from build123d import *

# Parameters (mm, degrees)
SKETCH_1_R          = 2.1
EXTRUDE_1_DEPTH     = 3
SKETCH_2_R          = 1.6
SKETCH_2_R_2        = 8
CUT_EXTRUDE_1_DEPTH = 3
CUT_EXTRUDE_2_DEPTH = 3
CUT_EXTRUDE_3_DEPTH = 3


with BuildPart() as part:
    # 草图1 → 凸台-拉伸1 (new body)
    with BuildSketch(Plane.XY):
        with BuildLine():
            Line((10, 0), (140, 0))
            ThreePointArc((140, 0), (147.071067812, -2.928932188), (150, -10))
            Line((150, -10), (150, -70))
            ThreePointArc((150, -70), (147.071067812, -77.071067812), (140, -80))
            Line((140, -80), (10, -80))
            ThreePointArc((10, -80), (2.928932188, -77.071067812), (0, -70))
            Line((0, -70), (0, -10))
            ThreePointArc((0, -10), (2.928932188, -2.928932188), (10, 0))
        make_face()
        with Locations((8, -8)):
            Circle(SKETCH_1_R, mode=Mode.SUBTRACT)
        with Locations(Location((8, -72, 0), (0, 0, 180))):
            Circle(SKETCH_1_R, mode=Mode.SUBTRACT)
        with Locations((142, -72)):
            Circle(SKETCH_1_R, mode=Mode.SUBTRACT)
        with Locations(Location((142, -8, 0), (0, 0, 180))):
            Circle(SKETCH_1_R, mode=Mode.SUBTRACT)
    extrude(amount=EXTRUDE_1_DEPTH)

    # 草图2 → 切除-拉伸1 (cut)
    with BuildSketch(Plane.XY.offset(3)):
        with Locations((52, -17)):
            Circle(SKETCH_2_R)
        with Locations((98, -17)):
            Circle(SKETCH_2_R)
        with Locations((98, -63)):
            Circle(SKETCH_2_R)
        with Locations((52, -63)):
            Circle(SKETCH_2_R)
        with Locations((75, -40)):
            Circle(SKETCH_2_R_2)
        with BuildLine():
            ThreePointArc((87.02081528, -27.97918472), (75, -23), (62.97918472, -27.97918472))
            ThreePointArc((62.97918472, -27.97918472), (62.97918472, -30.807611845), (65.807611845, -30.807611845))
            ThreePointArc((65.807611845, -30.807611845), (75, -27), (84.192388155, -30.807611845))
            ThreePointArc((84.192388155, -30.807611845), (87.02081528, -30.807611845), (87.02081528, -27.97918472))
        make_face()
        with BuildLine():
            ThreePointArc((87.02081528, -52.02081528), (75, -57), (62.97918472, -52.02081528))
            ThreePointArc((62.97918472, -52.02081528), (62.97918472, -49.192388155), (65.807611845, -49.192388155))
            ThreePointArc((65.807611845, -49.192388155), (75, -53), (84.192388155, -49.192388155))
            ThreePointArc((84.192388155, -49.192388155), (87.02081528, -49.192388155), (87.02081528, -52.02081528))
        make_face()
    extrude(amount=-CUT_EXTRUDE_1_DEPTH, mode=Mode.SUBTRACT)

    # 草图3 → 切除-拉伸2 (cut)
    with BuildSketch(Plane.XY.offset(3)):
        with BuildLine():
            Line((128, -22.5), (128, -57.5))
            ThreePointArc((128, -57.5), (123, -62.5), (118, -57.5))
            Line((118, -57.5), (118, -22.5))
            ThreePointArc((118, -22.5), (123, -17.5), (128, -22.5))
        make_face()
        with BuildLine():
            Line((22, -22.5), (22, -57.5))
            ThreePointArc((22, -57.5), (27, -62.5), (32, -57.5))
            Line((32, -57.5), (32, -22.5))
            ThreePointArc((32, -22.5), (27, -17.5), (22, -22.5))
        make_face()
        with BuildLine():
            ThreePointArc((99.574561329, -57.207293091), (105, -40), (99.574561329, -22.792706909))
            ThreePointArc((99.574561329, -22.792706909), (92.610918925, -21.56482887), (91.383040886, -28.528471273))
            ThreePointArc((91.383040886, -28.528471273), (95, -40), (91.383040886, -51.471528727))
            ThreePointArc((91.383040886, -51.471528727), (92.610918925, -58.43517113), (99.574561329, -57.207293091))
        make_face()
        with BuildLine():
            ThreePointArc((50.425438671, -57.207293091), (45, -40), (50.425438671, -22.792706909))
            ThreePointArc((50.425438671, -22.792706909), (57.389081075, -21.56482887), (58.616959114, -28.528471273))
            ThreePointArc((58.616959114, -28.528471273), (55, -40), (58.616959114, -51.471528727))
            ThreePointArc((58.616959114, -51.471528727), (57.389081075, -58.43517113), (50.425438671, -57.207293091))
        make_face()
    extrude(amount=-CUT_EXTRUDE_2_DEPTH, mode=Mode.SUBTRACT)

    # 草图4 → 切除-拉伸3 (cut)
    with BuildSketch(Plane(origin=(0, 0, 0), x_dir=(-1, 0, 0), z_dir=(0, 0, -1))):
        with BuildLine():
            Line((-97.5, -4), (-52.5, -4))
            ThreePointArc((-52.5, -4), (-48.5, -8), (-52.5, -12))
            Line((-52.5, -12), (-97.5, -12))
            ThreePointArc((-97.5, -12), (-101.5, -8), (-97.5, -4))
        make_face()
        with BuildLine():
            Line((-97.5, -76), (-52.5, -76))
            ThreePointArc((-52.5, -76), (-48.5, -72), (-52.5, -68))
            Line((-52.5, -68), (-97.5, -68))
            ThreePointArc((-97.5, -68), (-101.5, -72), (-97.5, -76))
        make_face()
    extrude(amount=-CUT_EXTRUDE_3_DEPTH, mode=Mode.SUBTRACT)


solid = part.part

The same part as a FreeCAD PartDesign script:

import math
import FreeCAD as App
import Part
import Sketcher

V = App.Vector
Q = App.Units.Quantity

doc = App.newDocument("Part")
body = doc.addObject("PartDesign::Body", "Body")

# Sketch on XY plane
sketch1 = body.newObject("Sketcher::SketchObject", "Sketch")
sketch1.AttachmentSupport = (doc.getObject("XY_Plane"), [""])
sketch1.MapMode = "FlatFace"
sketch1.addGeometry([
    Part.LineSegment(V(140, 0, 0), V(10, 0, 0)),  # 0
    Part.ArcOfCircle(Part.Circle(V(10, -10, 0), V(0, 0, 1), 10), math.radians(90), math.radians(180)),  # 1
    Part.LineSegment(V(0, -10, 0), V(0, -70, 0)),  # 2
    Part.ArcOfCircle(Part.Circle(V(10, -70, 0), V(0, 0, 1), 10), math.radians(180), math.radians(270)),  # 3
    Part.LineSegment(V(10, -80, 0), V(140, -80, 0)),  # 4
    Part.ArcOfCircle(Part.Circle(V(140, -70, 0), V(0, 0, 1), 10), math.radians(-90), math.radians(0)),  # 5
    Part.LineSegment(V(150, -70, 0), V(150, -10, 0)),  # 6
    Part.ArcOfCircle(Part.Circle(V(140, -10, 0), V(0, 0, 1), 10), math.radians(0), math.radians(90)),  # 7
    Part.Circle(V(142, -72, 0), V(0, 0, 1), 2.1),  # 8
    Part.Circle(V(8, -72, 0), V(0, 0, 1), 2.1),  # 9
    Part.Circle(V(142, -8, 0), V(0, 0, 1), 2.1),  # 10
    Part.Circle(V(8, -8, 0), V(0, 0, 1), 2.1),  # 11
], False)
sketch1.addConstraint([
    Sketcher.Constraint("Tangent", 0, 2, 1, 1),
    Sketcher.Constraint("Tangent", 1, 2, 2, 1),
    Sketcher.Constraint("Tangent", 2, 2, 3, 1),
    Sketcher.Constraint("Tangent", 3, 2, 4, 1),
    Sketcher.Constraint("Tangent", 4, 2, 5, 1),
    Sketcher.Constraint("Tangent", 5, 2, 6, 1),
    Sketcher.Constraint("Tangent", 6, 2, 7, 1),
    Sketcher.Constraint("Tangent", 7, 2, 0, 1),
    Sketcher.Constraint("Horizontal", 0),
    Sketcher.Constraint("Vertical", 2),
    Sketcher.Constraint("Horizontal", 4),
    Sketcher.Constraint("Vertical", 6),
    Sketcher.Constraint("Equal", 1, 3),
    Sketcher.Constraint("Equal", 3, 5),
    Sketcher.Constraint("Equal", 5, 7),
    Sketcher.Constraint("Equal", 8, 9),
    Sketcher.Constraint("Equal", 9, 10),
    Sketcher.Constraint("Equal", 10, 11),
    Sketcher.Constraint("PointOnObject", 0, 2, -1),
    Sketcher.Constraint("PointOnObject", 1, 2, -2),
    Sketcher.Constraint("Horizontal", 8, 3, 9, 3),
    Sketcher.Constraint("Horizontal", 10, 3, 11, 3),
    Sketcher.Constraint("Vertical", 8, 3, 10, 3),
    Sketcher.Constraint("Vertical", 9, 3, 11, 3),
    Sketcher.Constraint("Radius", 1, Q("10 mm")),
    Sketcher.Constraint("Diameter", 8, Q("4.2 mm")),
    Sketcher.Constraint("DistanceX", 0, 2, 0, 1, Q("130 mm")),
    Sketcher.Constraint("DistanceY", 2, 2, 2, 1, Q("60 mm")),
    Sketcher.Constraint("DistanceX", -1, 1, 8, 3, Q("142 mm")),
    Sketcher.Constraint("DistanceY", 8, 3, -1, 1, Q("72 mm")),
    Sketcher.Constraint("DistanceX", -1, 1, 9, 3, Q("8 mm")),
    Sketcher.Constraint("DistanceY", 10, 3, -1, 1, Q("8 mm")),
])
pad1 = body.newObject("PartDesign::Pad", "Pad")
pad1.Profile = sketch1
pad1.Length = 3

# Sketch on XY plane
sketch2 = body.newObject("Sketcher::SketchObject", "Sketch001")
sketch2.AttachmentSupport = (doc.getObject("XY_Plane"), [""])
sketch2.MapMode = "FlatFace"
sketch2.AttachmentOffset = App.Placement(V(0, 0, 3), App.Rotation())
sketch2.addGeometry([
    Part.Circle(V(52, -17, 0), V(0, 0, 1), 1.6),  # 0
    Part.Circle(V(98, -17, 0), V(0, 0, 1), 1.6),  # 1
    Part.Circle(V(98, -63, 0), V(0, 0, 1), 1.6),  # 2
    Part.Circle(V(52, -63, 0), V(0, 0, 1), 1.6),  # 3
    Part.Circle(V(75, -40, 0), V(0, 0, 1), 8),  # 4
    Part.ArcOfCircle(Part.Circle(V(75, -40, 0), V(0, 0, 1), 17), math.radians(45), math.radians(135)),  # 5
    Part.ArcOfCircle(Part.Circle(V(64.393398, -29.393398, 0), V(0, 0, 1), 2), math.radians(135), math.radians(315)),  # 6
    Part.ArcOfCircle(Part.Circle(V(75, -40, 0), V(0, 0, 1), 13), math.radians(45), math.radians(135)),  # 7
    Part.ArcOfCircle(Part.Circle(V(85.606602, -29.393398, 0), V(0, 0, 1), 2), math.radians(-135), math.radians(45)),  # 8
    Part.ArcOfCircle(Part.Circle(V(75, -40, 0), V(0, 0, 1), 17), math.radians(-135), math.radians(-45)),  # 9
    Part.ArcOfCircle(Part.Circle(V(85.606602, -50.606602, 0), V(0, 0, 1), 2), math.radians(-45), math.radians(135)),  # 10
    Part.ArcOfCircle(Part.Circle(V(75, -40, 0), V(0, 0, 1), 13), math.radians(-135), math.radians(-45)),  # 11
    Part.ArcOfCircle(Part.Circle(V(64.393398, -50.606602, 0), V(0, 0, 1), 2), math.radians(45), math.radians(225)),  # 12
], False)
sketch2.addConstraint([
    Sketcher.Constraint("Tangent", 5, 2, 6, 1),
    Sketcher.Constraint("Tangent", 6, 2, 7, 2),
    Sketcher.Constraint("Tangent", 7, 1, 8, 1),
    Sketcher.Constraint("Tangent", 8, 2, 5, 1),
    Sketcher.Constraint("Tangent", 9, 2, 10, 1),
    Sketcher.Constraint("Tangent", 10, 2, 11, 2),
    Sketcher.Constraint("Tangent", 11, 1, 12, 1),
    Sketcher.Constraint("Tangent", 12, 2, 9, 1),
    Sketcher.Constraint("Coincident", 5, 3, 4, 3),
    Sketcher.Constraint("Coincident", 7, 3, 4, 3),
    Sketcher.Constraint("Coincident", 9, 3, 4, 3),
    Sketcher.Constraint("Coincident", 11, 3, 4, 3),
    Sketcher.Constraint("Equal", 0, 1),
    Sketcher.Constraint("Equal", 1, 2),
    Sketcher.Constraint("Equal", 2, 3),
    Sketcher.Constraint("Equal", 5, 9),
    Sketcher.Constraint("Equal", 8, 10),
    Sketcher.Constraint("Horizontal", 0, 3, 1, 3),
    Sketcher.Constraint("Horizontal", 2, 3, 3, 3),
    Sketcher.Constraint("Horizontal", 6, 3, 8, 3),
    Sketcher.Constraint("Horizontal", 10, 3, 12, 3),
    Sketcher.Constraint("Vertical", 1, 3, 2, 3),
    Sketcher.Constraint("Vertical", 0, 3, 3, 3),
    Sketcher.Constraint("Vertical", 8, 3, 10, 3),
    Sketcher.Constraint("Diameter", 4, Q("16 mm")),
    Sketcher.Constraint("Radius", 5, Q("17 mm")),
    Sketcher.Constraint("Radius", 6, Q("2 mm")),
    Sketcher.Constraint("Diameter", 0, Q("3.2 mm")),
    Sketcher.Constraint("DistanceX", -1, 1, 0, 3, Q("52 mm")),
    Sketcher.Constraint("DistanceY", 0, 3, -1, 1, Q("17 mm")),
    Sketcher.Constraint("DistanceX", -1, 1, 1, 3, Q("98 mm")),
    Sketcher.Constraint("DistanceY", 2, 3, -1, 1, Q("63 mm")),
    Sketcher.Constraint("DistanceX", -1, 1, 4, 3, Q("75 mm")),
    Sketcher.Constraint("DistanceY", 4, 3, -1, 1, Q("40 mm")),
    Sketcher.Constraint("DistanceX", -1, 1, 6, 3, Q("64.393398 mm")),
])
pocket1 = body.newObject("PartDesign::Pocket", "Pocket")
pocket1.Profile = sketch2
pocket1.Length = 3

# Sketch on XY plane
sketch3 = body.newObject("Sketcher::SketchObject", "Sketch002")
sketch3.AttachmentSupport = (doc.getObject("XY_Plane"), [""])
sketch3.MapMode = "FlatFace"
sketch3.AttachmentOffset = App.Placement(V(0, 0, 3), App.Rotation())
sketch3.addGeometry([
    Part.LineSegment(V(128, -57.5, 0), V(128, -22.5, 0)),  # 0
    Part.ArcOfCircle(Part.Circle(V(123, -22.5, 0), V(0, 0, 1), 5), math.radians(0), math.radians(180)),  # 1
    Part.LineSegment(V(118, -22.5, 0), V(118, -57.5, 0)),  # 2
    Part.ArcOfCircle(Part.Circle(V(123, -57.5, 0), V(0, 0, 1), 5), math.radians(180), math.radians(360)),  # 3
    Part.LineSegment(V(22, -22.5, 0), V(22, -57.5, 0)),  # 4
    Part.ArcOfCircle(Part.Circle(V(27, -57.5, 0), V(0, 0, 1), 5), math.radians(180), math.radians(360)),  # 5
    Part.LineSegment(V(32, -57.5, 0), V(32, -22.5, 0)),  # 6
    Part.ArcOfCircle(Part.Circle(V(27, -22.5, 0), V(0, 0, 1), 5), math.radians(0), math.radians(180)),  # 7
    Part.ArcOfCircle(Part.Circle(V(75, -40, 0), V(0, 0, 1), 30), math.radians(-35), math.radians(35)),  # 8
    Part.ArcOfCircle(Part.Circle(V(95.478801, -25.660589, 0), V(0, 0, 1), 5), math.radians(35), math.radians(215)),  # 9
    Part.ArcOfCircle(Part.Circle(V(75, -40, 0), V(0, 0, 1), 20), math.radians(-35), math.radians(35)),  # 10
    Part.ArcOfCircle(Part.Circle(V(95.478801, -54.339411, 0), V(0, 0, 1), 5), math.radians(145), math.radians(325)),  # 11
    Part.ArcOfCircle(Part.Circle(V(75, -40, 0), V(0, 0, 1), 30), math.radians(145), math.radians(215)),  # 12
    Part.ArcOfCircle(Part.Circle(V(54.521199, -54.339411, 0), V(0, 0, 1), 5), math.radians(-145), math.radians(35)),  # 13
    Part.ArcOfCircle(Part.Circle(V(75, -40, 0), V(0, 0, 1), 20), math.radians(145), math.radians(215)),  # 14
    Part.ArcOfCircle(Part.Circle(V(54.521199, -25.660589, 0), V(0, 0, 1), 5), math.radians(-35), math.radians(145)),  # 15
], False)
sketch3.addConstraint([
    Sketcher.Constraint("Tangent", 0, 2, 1, 1),
    Sketcher.Constraint("Tangent", 1, 2, 2, 1),
    Sketcher.Constraint("Tangent", 2, 2, 3, 1),
    Sketcher.Constraint("Tangent", 3, 2, 0, 1),
    Sketcher.Constraint("Tangent", 4, 2, 5, 1),
    Sketcher.Constraint("Tangent", 5, 2, 6, 1),
    Sketcher.Constraint("Tangent", 6, 2, 7, 1),
    Sketcher.Constraint("Tangent", 7, 2, 4, 1),
    Sketcher.Constraint("Tangent", 8, 2, 9, 1),
    Sketcher.Constraint("Tangent", 9, 2, 10, 2),
    Sketcher.Constraint("Tangent", 10, 1, 11, 1),
    Sketcher.Constraint("Tangent", 11, 2, 8, 1),
    Sketcher.Constraint("Tangent", 12, 2, 13, 1),
    Sketcher.Constraint("Tangent", 13, 2, 14, 2),
    Sketcher.Constraint("Tangent", 14, 1, 15, 1),
    Sketcher.Constraint("Tangent", 15, 2, 12, 1),
    Sketcher.Constraint("Vertical", 0),
    Sketcher.Constraint("Vertical", 2),
    Sketcher.Constraint("Vertical", 4),
    Sketcher.Constraint("Vertical", 6),
    Sketcher.Constraint("Coincident", 10, 3, 8, 3),
    Sketcher.Constraint("Coincident", 12, 3, 8, 3),
    Sketcher.Constraint("Coincident", 14, 3, 8, 3),
    Sketcher.Constraint("Equal", 3, 5),
    Sketcher.Constraint("Equal", 7, 9),
    Sketcher.Constraint("Equal", 8, 12),
    Sketcher.Constraint("Equal", 11, 13),
    Sketcher.Constraint("Horizontal", 3, 3, 5, 3),
    Sketcher.Constraint("Horizontal", 1, 3, 7, 3),
    Sketcher.Constraint("Horizontal", 11, 3, 13, 3),
    Sketcher.Constraint("Horizontal", 9, 3, 15, 3),
    Sketcher.Constraint("Vertical", 9, 3, 11, 3),
    Sketcher.Constraint("Radius", 1, Q("5 mm")),
    Sketcher.Constraint("Radius", 8, Q("30 mm")),
    Sketcher.Constraint("DistanceY", 0, 1, 0, 2, Q("35 mm")),
    Sketcher.Constraint("DistanceX", -1, 1, 1, 3, Q("123 mm")),
    Sketcher.Constraint("DistanceX", -1, 1, 5, 3, Q("27 mm")),
    Sketcher.Constraint("DistanceX", -1, 1, 8, 3, Q("75 mm")),
    Sketcher.Constraint("DistanceY", 8, 3, -1, 1, Q("40 mm")),
    Sketcher.Constraint("DistanceY", 1, 3, -1, 1, Q("22.5 mm")),
    Sketcher.Constraint("DistanceX", -1, 1, 9, 3, Q("95.478801 mm")),
])
pocket2 = body.newObject("PartDesign::Pocket", "Pocket001")
pocket2.Profile = sketch3
pocket2.Length = 3

# Sketch on XY plane
sketch4 = body.newObject("Sketcher::SketchObject", "Sketch003")
sketch4.AttachmentSupport = (doc.getObject("XY_Plane"), [""])
sketch4.MapMode = "FlatFace"
sketch4.addGeometry([
    Part.LineSegment(V(52.5, -4, 0), V(97.5, -4, 0)),  # 0
    Part.ArcOfCircle(Part.Circle(V(97.5, -8, 0), V(0, 0, 1), 4), math.radians(-90), math.radians(90)),  # 1
    Part.LineSegment(V(97.5, -12, 0), V(52.5, -12, 0)),  # 2
    Part.ArcOfCircle(Part.Circle(V(52.5, -8, 0), V(0, 0, 1), 4), math.radians(90), math.radians(270)),  # 3
    Part.LineSegment(V(97.5, -76, 0), V(52.5, -76, 0)),  # 4
    Part.ArcOfCircle(Part.Circle(V(52.5, -72, 0), V(0, 0, 1), 4), math.radians(90), math.radians(270)),  # 5
    Part.LineSegment(V(52.5, -68, 0), V(97.5, -68, 0)),  # 6
    Part.ArcOfCircle(Part.Circle(V(97.5, -72, 0), V(0, 0, 1), 4), math.radians(-90), math.radians(90)),  # 7
], False)
sketch4.addConstraint([
    Sketcher.Constraint("Tangent", 0, 2, 1, 2),
    Sketcher.Constraint("Tangent", 1, 1, 2, 1),
    Sketcher.Constraint("Tangent", 2, 2, 3, 2),
    Sketcher.Constraint("Tangent", 3, 1, 0, 1),
    Sketcher.Constraint("Tangent", 4, 2, 5, 2),
    Sketcher.Constraint("Tangent", 5, 1, 6, 1),
    Sketcher.Constraint("Tangent", 6, 2, 7, 2),
    Sketcher.Constraint("Tangent", 7, 1, 4, 1),
    Sketcher.Constraint("Horizontal", 0),
    Sketcher.Constraint("Horizontal", 2),
    Sketcher.Constraint("Horizontal", 4),
    Sketcher.Constraint("Horizontal", 6),
    Sketcher.Constraint("Equal", 3, 5),
    Sketcher.Constraint("Vertical", 3, 3, 5, 3),
    Sketcher.Constraint("Vertical", 1, 3, 7, 3),
    Sketcher.Constraint("Radius", 1, Q("4 mm")),
    Sketcher.Constraint("DistanceX", 0, 1, 0, 2, Q("45 mm")),
    Sketcher.Constraint("DistanceY", 1, 3, -1, 1, Q("8 mm")),
    Sketcher.Constraint("DistanceY", 5, 3, -1, 1, Q("72 mm")),
    Sketcher.Constraint("DistanceX", -1, 1, 1, 3, Q("97.5 mm")),
])
pocket3 = body.newObject("PartDesign::Pocket", "Pocket002")
pocket3.Profile = sketch4
pocket3.Length = 3
pocket3.Reversed = True

doc.recompute()
